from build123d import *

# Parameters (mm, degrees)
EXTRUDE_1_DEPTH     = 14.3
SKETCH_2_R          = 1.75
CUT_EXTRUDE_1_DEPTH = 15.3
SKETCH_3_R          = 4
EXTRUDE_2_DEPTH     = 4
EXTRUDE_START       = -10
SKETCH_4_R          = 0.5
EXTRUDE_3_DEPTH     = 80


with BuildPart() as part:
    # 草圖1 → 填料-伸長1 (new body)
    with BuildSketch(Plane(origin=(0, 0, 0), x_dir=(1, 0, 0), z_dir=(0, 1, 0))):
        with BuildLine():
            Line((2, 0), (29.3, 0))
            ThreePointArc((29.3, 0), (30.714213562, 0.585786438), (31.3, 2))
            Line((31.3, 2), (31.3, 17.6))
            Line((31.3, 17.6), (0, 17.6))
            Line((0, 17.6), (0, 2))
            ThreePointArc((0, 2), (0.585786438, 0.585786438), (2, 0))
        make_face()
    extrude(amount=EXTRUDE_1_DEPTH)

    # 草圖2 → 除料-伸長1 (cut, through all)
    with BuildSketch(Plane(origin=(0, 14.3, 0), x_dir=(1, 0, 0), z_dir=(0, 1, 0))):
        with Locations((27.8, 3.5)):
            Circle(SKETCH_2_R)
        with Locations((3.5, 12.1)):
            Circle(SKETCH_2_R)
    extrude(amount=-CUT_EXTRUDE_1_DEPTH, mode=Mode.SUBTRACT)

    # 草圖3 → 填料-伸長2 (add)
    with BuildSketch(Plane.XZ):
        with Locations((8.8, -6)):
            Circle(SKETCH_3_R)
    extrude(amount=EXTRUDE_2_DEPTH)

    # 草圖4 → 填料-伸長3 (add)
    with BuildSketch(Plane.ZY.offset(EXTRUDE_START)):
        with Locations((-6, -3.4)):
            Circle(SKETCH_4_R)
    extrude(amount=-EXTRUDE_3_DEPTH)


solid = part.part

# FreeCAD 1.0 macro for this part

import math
import FreeCAD as App
import Part
import Sketcher
Q = App.Units.Quantity

doc = App.newDocument("Part")
body = doc.addObject("PartDesign::Body", "Body")

sketch1 = doc.addObject("Sketcher::SketchObject", "Sketch")
body.addObject(sketch1)
sketch1.AttachmentSupport = (doc.XZ_Plane, [""])
sketch1.MapMode = "FlatFace"
sketch1.addGeometry([
    Part.LineSegment(App.Vector(2, 0, 0), App.Vector(29.3, 0, 0)),
    Part.ArcOfCircle(Part.Circle(App.Vector(29.3, -2, 0), App.Vector(0, 0, 1), 2), math.radians(0), math.radians(90)),
    Part.LineSegment(App.Vector(31.3, -2, 0), App.Vector(31.3, -17.6, 0)),
    Part.LineSegment(App.Vector(31.3, -17.6, 0), App.Vector(0, -17.6, 0)),
    Part.LineSegment(App.Vector(0, -17.6, 0), App.Vector(0, -2, 0)),
    Part.ArcOfCircle(Part.Circle(App.Vector(2, -2, 0), App.Vector(0, 0, 1), 2), math.radians(90), math.radians(180)),
], False)
sketch1.addConstraint([
    Sketcher.Constraint("Tangent", 0, 2, 1, 2),
    Sketcher.Constraint("Tangent", 1, 1, 2, 1),
    Sketcher.Constraint("Coincident", 2, 2, 3, 1),
    Sketcher.Constraint("Coincident", 3, 2, 4, 1),
    Sketcher.Constraint("Tangent", 4, 2, 5, 2),
    Sketcher.Constraint("Tangent", 5, 1, 0, 1),
    Sketcher.Constraint("Horizontal", 0),
    Sketcher.Constraint("Vertical", 2),
    Sketcher.Constraint("Horizontal", 3),
    Sketcher.Constraint("Vertical", 4),
    Sketcher.Constraint("Equal", 1, 5),
    Sketcher.Constraint("PointOnObject", 0, 2, -1),
    Sketcher.Constraint("PointOnObject", 3, 2, -2),
    Sketcher.Constraint("Radius", 1, Q("2 mm")),
    Sketcher.Constraint("DistanceX", 0, 1, 0, 2, Q("27.3 mm")),
    Sketcher.Constraint("DistanceY", 2, 2, 2, 1, Q("15.6 mm")),
])
pad1 = doc.addObject("PartDesign::Pad", "Pad")
body.addObject(pad1)
pad1.Profile = sketch1
pad1.Length = 14.3
pad1.Reversed = True

sketch2 = doc.addObject("Sketcher::SketchObject", "Sketch001")
body.addObject(sketch2)
sketch2.AttachmentSupport = (doc.XZ_Plane, [""])
sketch2.MapMode = "FlatFace"
sketch2.AttachmentOffset = App.Placement(App.Vector(0, 0, -14.3), App.Rotation())
sketch2.addGeometry([
    Part.Circle(App.Vector(27.8, -3.5, 0), App.Vector(0, 0, 1), 1.8),
    Part.Circle(App.Vector(3.5, -12.1, 0), App.Vector(0, 0, 1), 1.8),
], False)
sketch2.addConstraint([
    Sketcher.Constraint("Equal", 0, 1),
    Sketcher.Constraint("Diameter", 0, Q("3.5 mm")),
    Sketcher.Constraint("DistanceX", -1, 1, 0, 3, Q("27.8 mm")),
    Sketcher.Constraint("DistanceY", 0, 3, -1, 1, Q("3.5 mm")),
    Sketcher.Constraint("DistanceX", -1, 1, 1, 3, Q("3.5 mm")),
    Sketcher.Constraint("DistanceY", 1, 3, -1, 1, Q("12.1 mm")),
])
pocket1 = doc.addObject("PartDesign::Pocket", "Pocket")
body.addObject(pocket1)
pocket1.Profile = sketch2
pocket1.Type = "ThroughAll"
pocket1.Reversed = True

sketch3 = doc.addObject("Sketcher::SketchObject", "Sketch002")
body.addObject(sketch3)
sketch3.AttachmentSupport = (doc.XZ_Plane, [""])
sketch3.MapMode = "FlatFace"
sketch3.addGeometry(Part.Circle(App.Vector(8.8, -6, 0), App.Vector(0, 0, 1), 4), False)
sketch3.addConstraint([
    Sketcher.Constraint("Diameter", 0, Q("8 mm")),
    Sketcher.Constraint("DistanceY", 0, 3, -1, 1, Q("6 mm")),
    Sketcher.Constraint("DistanceX", -1, 1, 0, 3, Q("8.8 mm")),
])
pad2 = doc.addObject("PartDesign::Pad", "Pad001")
body.addObject(pad2)
pad2.Profile = sketch3
pad2.Length = 4

sketch4 = doc.addObject("Sketcher::SketchObject", "Sketch003")
body.addObject(sketch4)
sketch4.AttachmentSupport = (doc.YZ_Plane, [""])
sketch4.MapMode = "FlatFace"
sketch4.AttachmentOffset = App.Placement(App.Vector(0, 0, 10), App.Rotation())
sketch4.addGeometry(Part.Circle(App.Vector(-3.4, -6, 0), App.Vector(0, 0, 1), 0.5), False)
sketch4.addConstraint([
    Sketcher.Constraint("Diameter", 0, Q("1 mm")),
    Sketcher.Constraint("DistanceY", 0, 3, -1, 1, Q("6 mm")),
    Sketcher.Constraint("DistanceX", 0, 3, -1, 1, Q("3.4 mm")),
])
pad3 = doc.addObject("PartDesign::Pad", "Pad002")
body.addObject(pad3)
pad3.Profile = sketch4
pad3.Length = 80

doc.recompute()
